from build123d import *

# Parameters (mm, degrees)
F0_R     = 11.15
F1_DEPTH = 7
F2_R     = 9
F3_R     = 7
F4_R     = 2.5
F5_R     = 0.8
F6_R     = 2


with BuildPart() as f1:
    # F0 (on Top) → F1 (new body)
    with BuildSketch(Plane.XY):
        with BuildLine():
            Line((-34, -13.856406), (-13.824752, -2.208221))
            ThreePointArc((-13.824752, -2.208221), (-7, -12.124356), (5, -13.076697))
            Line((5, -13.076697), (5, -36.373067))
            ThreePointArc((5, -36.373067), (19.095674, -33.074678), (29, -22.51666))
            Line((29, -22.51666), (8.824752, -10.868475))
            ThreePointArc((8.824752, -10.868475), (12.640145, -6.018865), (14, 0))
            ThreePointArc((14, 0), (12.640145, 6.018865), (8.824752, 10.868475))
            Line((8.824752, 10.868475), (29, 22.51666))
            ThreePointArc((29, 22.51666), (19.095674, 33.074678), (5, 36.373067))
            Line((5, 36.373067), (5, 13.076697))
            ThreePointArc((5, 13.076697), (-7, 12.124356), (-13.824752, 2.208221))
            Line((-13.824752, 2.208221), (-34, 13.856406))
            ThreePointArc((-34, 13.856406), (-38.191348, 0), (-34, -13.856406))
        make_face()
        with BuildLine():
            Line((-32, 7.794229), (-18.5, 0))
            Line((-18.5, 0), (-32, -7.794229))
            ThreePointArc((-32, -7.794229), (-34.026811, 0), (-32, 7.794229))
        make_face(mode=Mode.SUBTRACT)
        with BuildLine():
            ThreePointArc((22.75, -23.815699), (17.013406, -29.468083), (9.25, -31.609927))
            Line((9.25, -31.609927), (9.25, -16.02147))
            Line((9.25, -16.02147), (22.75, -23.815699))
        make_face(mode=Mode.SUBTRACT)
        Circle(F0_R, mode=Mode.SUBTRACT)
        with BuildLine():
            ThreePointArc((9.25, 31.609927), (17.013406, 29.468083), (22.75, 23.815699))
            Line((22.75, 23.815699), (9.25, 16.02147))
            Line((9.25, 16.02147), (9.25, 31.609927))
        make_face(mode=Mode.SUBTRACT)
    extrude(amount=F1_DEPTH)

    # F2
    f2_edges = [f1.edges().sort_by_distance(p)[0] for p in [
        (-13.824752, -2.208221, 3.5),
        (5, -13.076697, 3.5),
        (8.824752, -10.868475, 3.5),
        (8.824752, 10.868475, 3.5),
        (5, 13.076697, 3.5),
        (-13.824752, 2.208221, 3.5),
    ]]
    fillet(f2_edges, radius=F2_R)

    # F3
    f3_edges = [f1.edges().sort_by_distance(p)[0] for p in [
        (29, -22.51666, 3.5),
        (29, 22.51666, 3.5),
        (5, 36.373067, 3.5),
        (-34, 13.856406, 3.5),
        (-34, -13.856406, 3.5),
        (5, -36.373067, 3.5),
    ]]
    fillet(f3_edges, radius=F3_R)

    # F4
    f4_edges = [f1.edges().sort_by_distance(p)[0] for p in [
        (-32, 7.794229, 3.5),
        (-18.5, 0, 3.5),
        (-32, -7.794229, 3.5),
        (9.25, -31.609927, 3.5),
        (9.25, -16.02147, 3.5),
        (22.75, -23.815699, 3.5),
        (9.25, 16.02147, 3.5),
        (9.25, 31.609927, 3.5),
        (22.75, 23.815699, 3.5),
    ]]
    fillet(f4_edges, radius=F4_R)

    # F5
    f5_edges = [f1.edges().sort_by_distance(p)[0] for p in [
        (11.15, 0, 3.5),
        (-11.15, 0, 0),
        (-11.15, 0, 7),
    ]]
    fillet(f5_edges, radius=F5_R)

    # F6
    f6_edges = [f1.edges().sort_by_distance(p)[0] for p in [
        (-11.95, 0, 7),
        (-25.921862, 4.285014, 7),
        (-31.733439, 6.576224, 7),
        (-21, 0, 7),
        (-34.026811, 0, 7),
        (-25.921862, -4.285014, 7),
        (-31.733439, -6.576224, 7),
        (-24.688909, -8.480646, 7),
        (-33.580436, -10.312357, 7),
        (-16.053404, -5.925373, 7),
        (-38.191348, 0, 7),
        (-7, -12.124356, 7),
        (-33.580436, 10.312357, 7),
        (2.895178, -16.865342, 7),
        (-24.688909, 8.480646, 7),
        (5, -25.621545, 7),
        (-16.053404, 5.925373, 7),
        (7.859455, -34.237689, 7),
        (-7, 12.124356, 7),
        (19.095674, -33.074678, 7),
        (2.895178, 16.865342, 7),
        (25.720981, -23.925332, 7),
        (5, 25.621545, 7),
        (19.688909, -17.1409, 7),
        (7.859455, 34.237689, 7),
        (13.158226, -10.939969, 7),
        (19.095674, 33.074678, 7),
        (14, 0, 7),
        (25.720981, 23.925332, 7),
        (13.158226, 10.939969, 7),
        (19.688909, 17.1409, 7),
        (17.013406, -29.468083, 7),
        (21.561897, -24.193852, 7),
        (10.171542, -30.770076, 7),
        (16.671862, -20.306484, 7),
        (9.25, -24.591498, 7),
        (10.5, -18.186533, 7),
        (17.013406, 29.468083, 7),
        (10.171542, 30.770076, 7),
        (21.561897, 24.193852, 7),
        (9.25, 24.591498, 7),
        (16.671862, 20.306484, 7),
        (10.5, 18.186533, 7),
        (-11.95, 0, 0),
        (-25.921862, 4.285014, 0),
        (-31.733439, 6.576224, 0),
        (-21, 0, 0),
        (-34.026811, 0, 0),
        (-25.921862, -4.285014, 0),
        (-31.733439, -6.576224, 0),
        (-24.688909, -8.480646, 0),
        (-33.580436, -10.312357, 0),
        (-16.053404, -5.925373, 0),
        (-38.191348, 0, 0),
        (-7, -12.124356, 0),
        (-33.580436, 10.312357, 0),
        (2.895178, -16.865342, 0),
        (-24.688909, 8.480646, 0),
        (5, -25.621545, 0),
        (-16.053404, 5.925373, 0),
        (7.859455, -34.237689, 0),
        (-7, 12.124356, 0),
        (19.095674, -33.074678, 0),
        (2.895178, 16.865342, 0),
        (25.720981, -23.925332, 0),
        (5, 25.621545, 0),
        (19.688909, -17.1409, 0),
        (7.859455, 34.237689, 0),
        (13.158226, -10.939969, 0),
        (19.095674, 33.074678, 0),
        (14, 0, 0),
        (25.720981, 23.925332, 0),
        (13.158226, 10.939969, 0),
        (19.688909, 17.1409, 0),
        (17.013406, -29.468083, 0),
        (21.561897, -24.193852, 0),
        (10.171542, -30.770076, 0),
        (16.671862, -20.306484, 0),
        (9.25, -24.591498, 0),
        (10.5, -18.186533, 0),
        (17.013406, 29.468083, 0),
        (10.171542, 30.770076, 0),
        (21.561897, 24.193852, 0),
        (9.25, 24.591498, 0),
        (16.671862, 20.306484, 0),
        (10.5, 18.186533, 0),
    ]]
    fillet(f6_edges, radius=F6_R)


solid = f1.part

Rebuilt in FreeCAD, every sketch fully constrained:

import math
import FreeCAD as App
import Part
import Sketcher
Q = App.Units.Quantity


def edges_at(feature, points):
    """Names of the edges that pass closest to the given points."""
    edges = feature.Shape.Edges
    near = lambda p: min(range(len(edges)), key=lambda i: edges[i].distToShape(Part.Vertex(*p))[0])
    return sorted({f"Edge{near(p) + 1}" for p in points})

doc = App.newDocument("Part")
body = doc.addObject("PartDesign::Body", "Body")

sketch1 = body.newObject("Sketcher::SketchObject", "Sketch")
sketch1.AttachmentSupport = (doc.getObject("XY_Plane"), [""])
sketch1.MapMode = "FlatFace"
sketch1.addGeometry(Part.LineSegment(App.Vector(-34, -13.856406, 0), App.Vector(-13.824752, -2.208221, 0)), False)
sketch1.addGeometry(Part.ArcOfCircle(Part.Circle(App.Vector(0, 0, 0), App.Vector(0, 0, 1), 14), math.radians(-170.924835), math.radians(-69.075167)), False)
sketch1.addGeometry(Part.LineSegment(App.Vector(5, -13.076697, 0), App.Vector(5, -36.373067, 0)), False)
sketch1.addGeometry(Part.ArcOfCircle(Part.Circle(App.Vector(6.595675, -11.424045, 0), App.Vector(0, 0, 1), 24.999997), math.radians(-93.659506), math.radians(-26.340492)), False)
sketch1.addGeometry(Part.LineSegment(App.Vector(29, -22.51666, 0), App.Vector(8.824752, -10.868475, 0)), False)
sketch1.addGeometry(Part.ArcOfCircle(Part.Circle(App.Vector(0.000001, 0, 0), App.Vector(0, 0, 1), 13.999999), math.radians(-50.924833), math.radians(0.000002)), False)
sketch1.addGeometry(Part.ArcOfCircle(Part.Circle(App.Vector(0.000001, 0, 0), App.Vector(0, 0, 1), 13.999999), math.radians(-0.000002), math.radians(50.924833)), False)
sketch1.addGeometry(Part.LineSegment(App.Vector(8.824752, 10.868475, 0), App.Vector(29, 22.51666, 0)), False)
sketch1.addGeometry(Part.ArcOfCircle(Part.Circle(App.Vector(6.595675, 11.424045, 0), App.Vector(0, 0, 1), 24.999997), math.radians(26.340492), math.radians(93.659506)), False)
sketch1.addGeometry(Part.LineSegment(App.Vector(5, 36.373067, 0), App.Vector(5, 13.076697, 0)), False)
sketch1.addGeometry(Part.ArcOfCircle(Part.Circle(App.Vector(0, 0, 0), App.Vector(0, 0, 1), 14), math.radians(69.075167), math.radians(170.924835)), False)
sketch1.addGeometry(Part.LineSegment(App.Vector(-13.824752, 2.208221, 0), App.Vector(-34, 13.856406, 0)), False)
sketch1.addGeometry(Part.ArcOfCircle(Part.Circle(App.Vector(-13.19135, 0, 0), App.Vector(0, 0, 1), 24.999998), math.radians(146.340496), math.radians(213.659504)), False)
sketch1.addGeometry(Part.ArcOfCircle(Part.Circle(App.Vector(-18.026807, 0, 0), App.Vector(0, 0, 1), 16.000004), math.radians(150.847278), math.radians(209.152722)), False)
sketch1.addGeometry(Part.LineSegment(App.Vector(-32, 7.794229, 0), App.Vector(-18.5, 0, 0)), False)
sketch1.addGeometry(Part.LineSegment(App.Vector(-18.5, 0, 0), App.Vector(-32, -7.794229, 0)), False)
sketch1.addGeometry(Part.LineSegment(App.Vector(9.25, -16.02147, 0), App.Vector(22.75, -23.815699, 0)), False)
sketch1.addGeometry(Part.ArcOfCircle(Part.Circle(App.Vector(9.013407, -15.611677, 0), App.Vector(0, 0, 1), 15.999999), math.radians(-89.152731), math.radians(-30.847273)), False)
sketch1.addGeometry(Part.LineSegment(App.Vector(9.25, -31.609927, 0), App.Vector(9.25, -16.02147, 0)), False)
sketch1.addGeometry(Part.Circle(App.Vector(0, 0, 0), App.Vector(0, 0, 1), 11.15), False)
sketch1.addGeometry(Part.LineSegment(App.Vector(9.25, 16.02147, 0), App.Vector(9.25, 31.609927, 0)), False)
sketch1.addGeometry(Part.ArcOfCircle(Part.Circle(App.Vector(9.013407, 15.611677, 0), App.Vector(0, 0, 1), 15.999999), math.radians(30.847273), math.radians(89.152731)), False)
sketch1.addGeometry(Part.LineSegment(App.Vector(22.75, 23.815699, 0), App.Vector(9.25, 16.02147, 0)), False)
sketch1.addConstraint(Sketcher.Constraint("Coincident", 0, 2, 1, 1))
sketch1.addConstraint(Sketcher.Constraint("Coincident", 1, 2, 2, 1))
sketch1.addConstraint(Sketcher.Constraint("Coincident", 2, 2, 3, 1))
sketch1.addConstraint(Sketcher.Constraint("Coincident", 3, 2, 4, 1))
sketch1.addConstraint(Sketcher.Constraint("Coincident", 4, 2, 5, 1))
sketch1.addConstraint(Sketcher.Constraint("Tangent", 5, 2, 6, 1))
sketch1.addConstraint(Sketcher.Constraint("Coincident", 6, 2, 7, 1))
sketch1.addConstraint(Sketcher.Constraint("Coincident", 7, 2, 8, 1))
sketch1.addConstraint(Sketcher.Constraint("Coincident", 8, 2, 9, 1))
sketch1.addConstraint(Sketcher.Constraint("Coincident", 9, 2, 10, 1))
sketch1.addConstraint(Sketcher.Constraint("Coincident", 10, 2, 11, 1))
sketch1.addConstraint(Sketcher.Constraint("Coincident", 11, 2, 12, 1))
sketch1.addConstraint(Sketcher.Constraint("Coincident", 12, 2, 0, 1))
sketch1.addConstraint(Sketcher.Constraint("Coincident", 13, 1, 14, 1))
sketch1.addConstraint(Sketcher.Constraint("Coincident", 14, 2, 15, 1))
sketch1.addConstraint(Sketcher.Constraint("Coincident", 15, 2, 13, 2))
sketch1.addConstraint(Sketcher.Constraint("Coincident", 16, 2, 17, 2))
sketch1.addConstraint(Sketcher.Constraint("Coincident", 17, 1, 18, 1))
sketch1.addConstraint(Sketcher.Constraint("Coincident", 18, 2, 16, 1))
sketch1.addConstraint(Sketcher.Constraint("Coincident", 20, 2, 21, 2))
sketch1.addConstraint(Sketcher.Constraint("Coincident", 21, 1, 22, 1))
sketch1.addConstraint(Sketcher.Constraint("Coincident", 22, 2, 20, 1))
sketch1.addConstraint(Sketcher.Constraint("Vertical", 2))
sketch1.addConstraint(Sketcher.Constraint("Vertical", 9))
sketch1.addConstraint(Sketcher.Constraint("Vertical", 18))
sketch1.addConstraint(Sketcher.Constraint("Vertical", 20))
sketch1.addConstraint(Sketcher.Constraint("Coincident", 1, 3, -1, 1))
sketch1.addConstraint(Sketcher.Constraint("Coincident", 5, 3, -1, 1))
sketch1.addConstraint(Sketcher.Constraint("Coincident", 10, 3, -1, 1))
sketch1.addConstraint(Sketcher.Constraint("Coincident", 19, 3, -1, 1))
sketch1.addConstraint(Sketcher.Constraint("Equal", 1, 5))
sketch1.addConstraint(Sketcher.Constraint("Equal", 5, 6))
sketch1.addConstraint(Sketcher.Constraint("Equal", 3, 8))
sketch1.addConstraint(Sketcher.Constraint("Equal", 6, 10))
sketch1.addConstraint(Sketcher.Constraint("Equal", 8, 12))
sketch1.addConstraint(Sketcher.Constraint("Equal", 17, 21))
sketch1.addConstraint(Sketcher.Constraint("Symmetric", 3, 3, 8, 3, -1))
sketch1.addConstraint(Sketcher.Constraint("Symmetric", 17, 3, 21, 3, -1))
sketch1.addConstraint(Sketcher.Constraint("Symmetric", 11, 2, 12, 2, -1))
sketch1.addConstraint(Sketcher.Constraint("Symmetric", 13, 1, 15, 2, -1))
sketch1.addConstraint(Sketcher.Constraint("Symmetric", 18, 2, 22, 2, -1))
sketch1.addConstraint(Sketcher.Constraint("PointOnObject", 5, 2, -1))
sketch1.addConstraint(Sketcher.Constraint("PointOnObject", 14, 2, -1))
sketch1.addConstraint(Sketcher.Constraint("Parallel", 0, 7))
sketch1.addConstraint(Sketcher.Constraint("Parallel", 4, 11))
sketch1.addConstraint(Sketcher.Constraint("Parallel", 11, 14))
sketch1.addConstraint(Sketcher.Constraint("Parallel", 7, 15))
sketch1.addConstraint(Sketcher.Constraint("Parallel", 14, 16))
sketch1.addConstraint(Sketcher.Constraint("Parallel", 15, 22))
sketch1.addConstraint(Sketcher.Constraint("Vertical", 4, 2, 6, 2))
sketch1.addConstraint(Sketcher.Constraint("Vertical", 2, 2, 8, 2))
sketch1.addConstraint(Sketcher.Constraint("Equal", 0, 4))
sketch1.addConstraint(Sketcher.Constraint("Equal", 15, 16))
sketch1.addConstraint(Sketcher.Constraint("Radius", 1, 14.0))
sketch1.addConstraint(Sketcher.Constraint("Radius", 12, 24.999998))
sketch1.addConstraint(Sketcher.Constraint("Radius", 17, 15.999999))
sketch1.addConstraint(Sketcher.Constraint("Diameter", 19, 22.3))
sketch1.addConstraint(Sketcher.Constraint("Angle", 0, Q("30 deg")))
sketch1.addConstraint(Sketcher.Constraint("DistanceX", -1, 1, 1, 2, 5.0))
sketch1.addConstraint(Sketcher.Constraint("DistanceX", -1, 1, 3, 2, 29.0))
sketch1.addConstraint(Sketcher.Constraint("DistanceX", 11, 2, -1, 1, 34.0))
sketch1.addConstraint(Sketcher.Constraint("DistanceX", 13, 1, -1, 1, 32.0))
sketch1.addConstraint(Sketcher.Constraint("DistanceX", 14, 2, -1, 1, 18.5))
sketch1.addConstraint(Sketcher.Constraint("DistanceX", -1, 1, 16, 2, 22.75))
sketch1.addConstraint(Sketcher.Constraint("Radius", 13, 16.000004))
sketch1.addConstraint(Sketcher.Constraint("DistanceY", 16, 2, 1, 2, 10.739002))
sketch1.addConstraint(Sketcher.Constraint("DistanceY", 2, 2, 2, 1, 23.29637))
sketch1.addConstraint(Sketcher.Constraint("Distance", 0, 23.29637))
sketch1.addConstraint(Sketcher.Constraint("DistanceY", 18, 1, 18, 2, 15.588457))
pad1 = body.newObject("PartDesign::Pad", "Pad")
pad1.Profile = sketch1
pad1.Length = 7
doc.recompute()

fillet = body.newObject("PartDesign::Fillet", "Fillet")
fillet.Base = (pad1, edges_at(pad1, [
    (-13.825, -2.208, 3.5),
    (5, -13.077, 3.5),
    (8.825, -10.868, 3.5),
    (8.825, 10.868, 3.5),
    (5, 13.077, 3.5),
    (-13.825, 2.208, 3.5),
]))
fillet.Radius = 9
doc.recompute()

fillet2 = body.newObject("PartDesign::Fillet", "Fillet001")
fillet2.Base = (fillet, edges_at(fillet, [
    (29, -22.517, 3.5),
    (29, 22.517, 3.5),
    (5, 36.373, 3.5),
    (-34, 13.856, 3.5),
    (-34, -13.856, 3.5),
    (5, -36.373, 3.5),
]))
fillet2.Radius = 7
doc.recompute()

fillet3 = body.newObject("PartDesign::Fillet", "Fillet002")
fillet3.Base = (fillet2, edges_at(fillet2, [
    (-32, 7.794, 3.5),
    (-18.5, 0, 3.5),
    (-32, -7.794, 3.5),
    (9.25, -31.61, 3.5),
    (9.25, -16.021, 3.5),
    (22.75, -23.816, 3.5),
    (9.25, 16.021, 3.5),
    (9.25, 31.61, 3.5),
    (22.75, 23.816, 3.5),
]))
fillet3.Radius = 2.5
doc.recompute()

fillet4 = body.newObject("PartDesign::Fillet", "Fillet003")
fillet4.Base = (fillet3, edges_at(fillet3, [(11.15, 0, 3.5), (-11.15, 0, 0), (-11.15, 0, 7)]))
fillet4.Radius = 0.8
doc.recompute()

fillet5 = body.newObject("PartDesign::Fillet", "Fillet004")
fillet5.Base = (fillet4, edges_at(fillet4, [
    (-11.95, 0, 7),
    (-25.922, 4.285, 7),
    (-31.733, 6.576, 7),
    (-21, 0, 7),
    (-34.027, 0, 7),
    (-25.922, -4.285, 7),
    (-31.733, -6.576, 7),
    (-24.689, -8.481, 7),
    (-33.58, -10.312, 7),
    (-16.053, -5.925, 7),
    (-38.191, 0, 7),
    (-7, -12.124, 7),
    (-33.58, 10.312, 7),
    (2.895, -16.865, 7),
    (-24.689, 8.481, 7),
    (5, -25.622, 7),
    (-16.053, 5.925, 7),
    (7.859, -34.238, 7),
    (-7, 12.124, 7),
    (19.096, -33.075, 7),
    (2.895, 16.865, 7),
    (25.721, -23.925, 7),
    (5, 25.622, 7),
    (19.689, -17.141, 7),
    (7.859, 34.238, 7),
    (13.158, -10.94, 7),
    (19.096, 33.075, 7),
    (14, 0, 3.5),
    (25.721, 23.925, 7),
    (13.158, 10.94, 7),
    (19.689, 17.141, 7),
    (17.013, -29.468, 7),
    (21.562, -24.194, 7),
    (10.172, -30.77, 7),
    (16.672, -20.306, 7),
    (9.25, -24.591, 7),
    (10.5, -18.187, 7),
    (17.013, 29.468, 7),
    (10.172, 30.77, 7),
    (21.562, 24.194, 7),
    (9.25, 24.591, 7),
    (16.672, 20.306, 7),
    (10.5, 18.187, 7),
    (-11.95, 0, 0),
    (-25.922, 4.285, 0),
    (-31.733, 6.576, 0),
    (-21, 0, 0),
    (-34.027, 0, 0),
    (-25.922, -4.285, 0),
    (-31.733, -6.576, 0),
    (-24.689, -8.481, 0),
    (-33.58, -10.312, 0),
    (-16.053, -5.925, 0),
    (-38.191, 0, 0),
    (-7, -12.124, 0),
    (-33.58, 10.312, 0),
    (2.895, -16.865, 0),
    (-24.689, 8.481, 0),
    (5, -25.622, 0),
    (-16.053, 5.925, 0),
    (7.859, -34.238, 0),
    (-7, 12.124, 0),
    (19.096, -33.075, 0),
    (2.895, 16.865, 0),
    (25.721, -23.925, 0),
    (5, 25.622, 0),
    (19.689, -17.141, 0),
    (7.859, 34.238, 0),
    (13.158, -10.94, 0),
    (19.096, 33.075, 0),
    (13.788, -2.429, 0),
    (25.721, 23.925, 0),
    (13.158, 10.94, 0),
    (19.689, 17.141, 0),
    (17.013, -29.468, 0),
    (21.562, -24.194, 0),
    (10.172, -30.77, 0),
    (16.672, -20.306, 0),
    (9.25, -24.591, 0),
    (10.5, -18.187, 0),
    (17.013, 29.468, 0),
    (10.172, 30.77, 0),
    (21.562, 24.194, 0),
    (9.25, 24.591, 0),
    (16.672, 20.306, 0),
    (10.5, 18.187, 0),
]))
fillet5.Radius = 2

doc.recompute()
